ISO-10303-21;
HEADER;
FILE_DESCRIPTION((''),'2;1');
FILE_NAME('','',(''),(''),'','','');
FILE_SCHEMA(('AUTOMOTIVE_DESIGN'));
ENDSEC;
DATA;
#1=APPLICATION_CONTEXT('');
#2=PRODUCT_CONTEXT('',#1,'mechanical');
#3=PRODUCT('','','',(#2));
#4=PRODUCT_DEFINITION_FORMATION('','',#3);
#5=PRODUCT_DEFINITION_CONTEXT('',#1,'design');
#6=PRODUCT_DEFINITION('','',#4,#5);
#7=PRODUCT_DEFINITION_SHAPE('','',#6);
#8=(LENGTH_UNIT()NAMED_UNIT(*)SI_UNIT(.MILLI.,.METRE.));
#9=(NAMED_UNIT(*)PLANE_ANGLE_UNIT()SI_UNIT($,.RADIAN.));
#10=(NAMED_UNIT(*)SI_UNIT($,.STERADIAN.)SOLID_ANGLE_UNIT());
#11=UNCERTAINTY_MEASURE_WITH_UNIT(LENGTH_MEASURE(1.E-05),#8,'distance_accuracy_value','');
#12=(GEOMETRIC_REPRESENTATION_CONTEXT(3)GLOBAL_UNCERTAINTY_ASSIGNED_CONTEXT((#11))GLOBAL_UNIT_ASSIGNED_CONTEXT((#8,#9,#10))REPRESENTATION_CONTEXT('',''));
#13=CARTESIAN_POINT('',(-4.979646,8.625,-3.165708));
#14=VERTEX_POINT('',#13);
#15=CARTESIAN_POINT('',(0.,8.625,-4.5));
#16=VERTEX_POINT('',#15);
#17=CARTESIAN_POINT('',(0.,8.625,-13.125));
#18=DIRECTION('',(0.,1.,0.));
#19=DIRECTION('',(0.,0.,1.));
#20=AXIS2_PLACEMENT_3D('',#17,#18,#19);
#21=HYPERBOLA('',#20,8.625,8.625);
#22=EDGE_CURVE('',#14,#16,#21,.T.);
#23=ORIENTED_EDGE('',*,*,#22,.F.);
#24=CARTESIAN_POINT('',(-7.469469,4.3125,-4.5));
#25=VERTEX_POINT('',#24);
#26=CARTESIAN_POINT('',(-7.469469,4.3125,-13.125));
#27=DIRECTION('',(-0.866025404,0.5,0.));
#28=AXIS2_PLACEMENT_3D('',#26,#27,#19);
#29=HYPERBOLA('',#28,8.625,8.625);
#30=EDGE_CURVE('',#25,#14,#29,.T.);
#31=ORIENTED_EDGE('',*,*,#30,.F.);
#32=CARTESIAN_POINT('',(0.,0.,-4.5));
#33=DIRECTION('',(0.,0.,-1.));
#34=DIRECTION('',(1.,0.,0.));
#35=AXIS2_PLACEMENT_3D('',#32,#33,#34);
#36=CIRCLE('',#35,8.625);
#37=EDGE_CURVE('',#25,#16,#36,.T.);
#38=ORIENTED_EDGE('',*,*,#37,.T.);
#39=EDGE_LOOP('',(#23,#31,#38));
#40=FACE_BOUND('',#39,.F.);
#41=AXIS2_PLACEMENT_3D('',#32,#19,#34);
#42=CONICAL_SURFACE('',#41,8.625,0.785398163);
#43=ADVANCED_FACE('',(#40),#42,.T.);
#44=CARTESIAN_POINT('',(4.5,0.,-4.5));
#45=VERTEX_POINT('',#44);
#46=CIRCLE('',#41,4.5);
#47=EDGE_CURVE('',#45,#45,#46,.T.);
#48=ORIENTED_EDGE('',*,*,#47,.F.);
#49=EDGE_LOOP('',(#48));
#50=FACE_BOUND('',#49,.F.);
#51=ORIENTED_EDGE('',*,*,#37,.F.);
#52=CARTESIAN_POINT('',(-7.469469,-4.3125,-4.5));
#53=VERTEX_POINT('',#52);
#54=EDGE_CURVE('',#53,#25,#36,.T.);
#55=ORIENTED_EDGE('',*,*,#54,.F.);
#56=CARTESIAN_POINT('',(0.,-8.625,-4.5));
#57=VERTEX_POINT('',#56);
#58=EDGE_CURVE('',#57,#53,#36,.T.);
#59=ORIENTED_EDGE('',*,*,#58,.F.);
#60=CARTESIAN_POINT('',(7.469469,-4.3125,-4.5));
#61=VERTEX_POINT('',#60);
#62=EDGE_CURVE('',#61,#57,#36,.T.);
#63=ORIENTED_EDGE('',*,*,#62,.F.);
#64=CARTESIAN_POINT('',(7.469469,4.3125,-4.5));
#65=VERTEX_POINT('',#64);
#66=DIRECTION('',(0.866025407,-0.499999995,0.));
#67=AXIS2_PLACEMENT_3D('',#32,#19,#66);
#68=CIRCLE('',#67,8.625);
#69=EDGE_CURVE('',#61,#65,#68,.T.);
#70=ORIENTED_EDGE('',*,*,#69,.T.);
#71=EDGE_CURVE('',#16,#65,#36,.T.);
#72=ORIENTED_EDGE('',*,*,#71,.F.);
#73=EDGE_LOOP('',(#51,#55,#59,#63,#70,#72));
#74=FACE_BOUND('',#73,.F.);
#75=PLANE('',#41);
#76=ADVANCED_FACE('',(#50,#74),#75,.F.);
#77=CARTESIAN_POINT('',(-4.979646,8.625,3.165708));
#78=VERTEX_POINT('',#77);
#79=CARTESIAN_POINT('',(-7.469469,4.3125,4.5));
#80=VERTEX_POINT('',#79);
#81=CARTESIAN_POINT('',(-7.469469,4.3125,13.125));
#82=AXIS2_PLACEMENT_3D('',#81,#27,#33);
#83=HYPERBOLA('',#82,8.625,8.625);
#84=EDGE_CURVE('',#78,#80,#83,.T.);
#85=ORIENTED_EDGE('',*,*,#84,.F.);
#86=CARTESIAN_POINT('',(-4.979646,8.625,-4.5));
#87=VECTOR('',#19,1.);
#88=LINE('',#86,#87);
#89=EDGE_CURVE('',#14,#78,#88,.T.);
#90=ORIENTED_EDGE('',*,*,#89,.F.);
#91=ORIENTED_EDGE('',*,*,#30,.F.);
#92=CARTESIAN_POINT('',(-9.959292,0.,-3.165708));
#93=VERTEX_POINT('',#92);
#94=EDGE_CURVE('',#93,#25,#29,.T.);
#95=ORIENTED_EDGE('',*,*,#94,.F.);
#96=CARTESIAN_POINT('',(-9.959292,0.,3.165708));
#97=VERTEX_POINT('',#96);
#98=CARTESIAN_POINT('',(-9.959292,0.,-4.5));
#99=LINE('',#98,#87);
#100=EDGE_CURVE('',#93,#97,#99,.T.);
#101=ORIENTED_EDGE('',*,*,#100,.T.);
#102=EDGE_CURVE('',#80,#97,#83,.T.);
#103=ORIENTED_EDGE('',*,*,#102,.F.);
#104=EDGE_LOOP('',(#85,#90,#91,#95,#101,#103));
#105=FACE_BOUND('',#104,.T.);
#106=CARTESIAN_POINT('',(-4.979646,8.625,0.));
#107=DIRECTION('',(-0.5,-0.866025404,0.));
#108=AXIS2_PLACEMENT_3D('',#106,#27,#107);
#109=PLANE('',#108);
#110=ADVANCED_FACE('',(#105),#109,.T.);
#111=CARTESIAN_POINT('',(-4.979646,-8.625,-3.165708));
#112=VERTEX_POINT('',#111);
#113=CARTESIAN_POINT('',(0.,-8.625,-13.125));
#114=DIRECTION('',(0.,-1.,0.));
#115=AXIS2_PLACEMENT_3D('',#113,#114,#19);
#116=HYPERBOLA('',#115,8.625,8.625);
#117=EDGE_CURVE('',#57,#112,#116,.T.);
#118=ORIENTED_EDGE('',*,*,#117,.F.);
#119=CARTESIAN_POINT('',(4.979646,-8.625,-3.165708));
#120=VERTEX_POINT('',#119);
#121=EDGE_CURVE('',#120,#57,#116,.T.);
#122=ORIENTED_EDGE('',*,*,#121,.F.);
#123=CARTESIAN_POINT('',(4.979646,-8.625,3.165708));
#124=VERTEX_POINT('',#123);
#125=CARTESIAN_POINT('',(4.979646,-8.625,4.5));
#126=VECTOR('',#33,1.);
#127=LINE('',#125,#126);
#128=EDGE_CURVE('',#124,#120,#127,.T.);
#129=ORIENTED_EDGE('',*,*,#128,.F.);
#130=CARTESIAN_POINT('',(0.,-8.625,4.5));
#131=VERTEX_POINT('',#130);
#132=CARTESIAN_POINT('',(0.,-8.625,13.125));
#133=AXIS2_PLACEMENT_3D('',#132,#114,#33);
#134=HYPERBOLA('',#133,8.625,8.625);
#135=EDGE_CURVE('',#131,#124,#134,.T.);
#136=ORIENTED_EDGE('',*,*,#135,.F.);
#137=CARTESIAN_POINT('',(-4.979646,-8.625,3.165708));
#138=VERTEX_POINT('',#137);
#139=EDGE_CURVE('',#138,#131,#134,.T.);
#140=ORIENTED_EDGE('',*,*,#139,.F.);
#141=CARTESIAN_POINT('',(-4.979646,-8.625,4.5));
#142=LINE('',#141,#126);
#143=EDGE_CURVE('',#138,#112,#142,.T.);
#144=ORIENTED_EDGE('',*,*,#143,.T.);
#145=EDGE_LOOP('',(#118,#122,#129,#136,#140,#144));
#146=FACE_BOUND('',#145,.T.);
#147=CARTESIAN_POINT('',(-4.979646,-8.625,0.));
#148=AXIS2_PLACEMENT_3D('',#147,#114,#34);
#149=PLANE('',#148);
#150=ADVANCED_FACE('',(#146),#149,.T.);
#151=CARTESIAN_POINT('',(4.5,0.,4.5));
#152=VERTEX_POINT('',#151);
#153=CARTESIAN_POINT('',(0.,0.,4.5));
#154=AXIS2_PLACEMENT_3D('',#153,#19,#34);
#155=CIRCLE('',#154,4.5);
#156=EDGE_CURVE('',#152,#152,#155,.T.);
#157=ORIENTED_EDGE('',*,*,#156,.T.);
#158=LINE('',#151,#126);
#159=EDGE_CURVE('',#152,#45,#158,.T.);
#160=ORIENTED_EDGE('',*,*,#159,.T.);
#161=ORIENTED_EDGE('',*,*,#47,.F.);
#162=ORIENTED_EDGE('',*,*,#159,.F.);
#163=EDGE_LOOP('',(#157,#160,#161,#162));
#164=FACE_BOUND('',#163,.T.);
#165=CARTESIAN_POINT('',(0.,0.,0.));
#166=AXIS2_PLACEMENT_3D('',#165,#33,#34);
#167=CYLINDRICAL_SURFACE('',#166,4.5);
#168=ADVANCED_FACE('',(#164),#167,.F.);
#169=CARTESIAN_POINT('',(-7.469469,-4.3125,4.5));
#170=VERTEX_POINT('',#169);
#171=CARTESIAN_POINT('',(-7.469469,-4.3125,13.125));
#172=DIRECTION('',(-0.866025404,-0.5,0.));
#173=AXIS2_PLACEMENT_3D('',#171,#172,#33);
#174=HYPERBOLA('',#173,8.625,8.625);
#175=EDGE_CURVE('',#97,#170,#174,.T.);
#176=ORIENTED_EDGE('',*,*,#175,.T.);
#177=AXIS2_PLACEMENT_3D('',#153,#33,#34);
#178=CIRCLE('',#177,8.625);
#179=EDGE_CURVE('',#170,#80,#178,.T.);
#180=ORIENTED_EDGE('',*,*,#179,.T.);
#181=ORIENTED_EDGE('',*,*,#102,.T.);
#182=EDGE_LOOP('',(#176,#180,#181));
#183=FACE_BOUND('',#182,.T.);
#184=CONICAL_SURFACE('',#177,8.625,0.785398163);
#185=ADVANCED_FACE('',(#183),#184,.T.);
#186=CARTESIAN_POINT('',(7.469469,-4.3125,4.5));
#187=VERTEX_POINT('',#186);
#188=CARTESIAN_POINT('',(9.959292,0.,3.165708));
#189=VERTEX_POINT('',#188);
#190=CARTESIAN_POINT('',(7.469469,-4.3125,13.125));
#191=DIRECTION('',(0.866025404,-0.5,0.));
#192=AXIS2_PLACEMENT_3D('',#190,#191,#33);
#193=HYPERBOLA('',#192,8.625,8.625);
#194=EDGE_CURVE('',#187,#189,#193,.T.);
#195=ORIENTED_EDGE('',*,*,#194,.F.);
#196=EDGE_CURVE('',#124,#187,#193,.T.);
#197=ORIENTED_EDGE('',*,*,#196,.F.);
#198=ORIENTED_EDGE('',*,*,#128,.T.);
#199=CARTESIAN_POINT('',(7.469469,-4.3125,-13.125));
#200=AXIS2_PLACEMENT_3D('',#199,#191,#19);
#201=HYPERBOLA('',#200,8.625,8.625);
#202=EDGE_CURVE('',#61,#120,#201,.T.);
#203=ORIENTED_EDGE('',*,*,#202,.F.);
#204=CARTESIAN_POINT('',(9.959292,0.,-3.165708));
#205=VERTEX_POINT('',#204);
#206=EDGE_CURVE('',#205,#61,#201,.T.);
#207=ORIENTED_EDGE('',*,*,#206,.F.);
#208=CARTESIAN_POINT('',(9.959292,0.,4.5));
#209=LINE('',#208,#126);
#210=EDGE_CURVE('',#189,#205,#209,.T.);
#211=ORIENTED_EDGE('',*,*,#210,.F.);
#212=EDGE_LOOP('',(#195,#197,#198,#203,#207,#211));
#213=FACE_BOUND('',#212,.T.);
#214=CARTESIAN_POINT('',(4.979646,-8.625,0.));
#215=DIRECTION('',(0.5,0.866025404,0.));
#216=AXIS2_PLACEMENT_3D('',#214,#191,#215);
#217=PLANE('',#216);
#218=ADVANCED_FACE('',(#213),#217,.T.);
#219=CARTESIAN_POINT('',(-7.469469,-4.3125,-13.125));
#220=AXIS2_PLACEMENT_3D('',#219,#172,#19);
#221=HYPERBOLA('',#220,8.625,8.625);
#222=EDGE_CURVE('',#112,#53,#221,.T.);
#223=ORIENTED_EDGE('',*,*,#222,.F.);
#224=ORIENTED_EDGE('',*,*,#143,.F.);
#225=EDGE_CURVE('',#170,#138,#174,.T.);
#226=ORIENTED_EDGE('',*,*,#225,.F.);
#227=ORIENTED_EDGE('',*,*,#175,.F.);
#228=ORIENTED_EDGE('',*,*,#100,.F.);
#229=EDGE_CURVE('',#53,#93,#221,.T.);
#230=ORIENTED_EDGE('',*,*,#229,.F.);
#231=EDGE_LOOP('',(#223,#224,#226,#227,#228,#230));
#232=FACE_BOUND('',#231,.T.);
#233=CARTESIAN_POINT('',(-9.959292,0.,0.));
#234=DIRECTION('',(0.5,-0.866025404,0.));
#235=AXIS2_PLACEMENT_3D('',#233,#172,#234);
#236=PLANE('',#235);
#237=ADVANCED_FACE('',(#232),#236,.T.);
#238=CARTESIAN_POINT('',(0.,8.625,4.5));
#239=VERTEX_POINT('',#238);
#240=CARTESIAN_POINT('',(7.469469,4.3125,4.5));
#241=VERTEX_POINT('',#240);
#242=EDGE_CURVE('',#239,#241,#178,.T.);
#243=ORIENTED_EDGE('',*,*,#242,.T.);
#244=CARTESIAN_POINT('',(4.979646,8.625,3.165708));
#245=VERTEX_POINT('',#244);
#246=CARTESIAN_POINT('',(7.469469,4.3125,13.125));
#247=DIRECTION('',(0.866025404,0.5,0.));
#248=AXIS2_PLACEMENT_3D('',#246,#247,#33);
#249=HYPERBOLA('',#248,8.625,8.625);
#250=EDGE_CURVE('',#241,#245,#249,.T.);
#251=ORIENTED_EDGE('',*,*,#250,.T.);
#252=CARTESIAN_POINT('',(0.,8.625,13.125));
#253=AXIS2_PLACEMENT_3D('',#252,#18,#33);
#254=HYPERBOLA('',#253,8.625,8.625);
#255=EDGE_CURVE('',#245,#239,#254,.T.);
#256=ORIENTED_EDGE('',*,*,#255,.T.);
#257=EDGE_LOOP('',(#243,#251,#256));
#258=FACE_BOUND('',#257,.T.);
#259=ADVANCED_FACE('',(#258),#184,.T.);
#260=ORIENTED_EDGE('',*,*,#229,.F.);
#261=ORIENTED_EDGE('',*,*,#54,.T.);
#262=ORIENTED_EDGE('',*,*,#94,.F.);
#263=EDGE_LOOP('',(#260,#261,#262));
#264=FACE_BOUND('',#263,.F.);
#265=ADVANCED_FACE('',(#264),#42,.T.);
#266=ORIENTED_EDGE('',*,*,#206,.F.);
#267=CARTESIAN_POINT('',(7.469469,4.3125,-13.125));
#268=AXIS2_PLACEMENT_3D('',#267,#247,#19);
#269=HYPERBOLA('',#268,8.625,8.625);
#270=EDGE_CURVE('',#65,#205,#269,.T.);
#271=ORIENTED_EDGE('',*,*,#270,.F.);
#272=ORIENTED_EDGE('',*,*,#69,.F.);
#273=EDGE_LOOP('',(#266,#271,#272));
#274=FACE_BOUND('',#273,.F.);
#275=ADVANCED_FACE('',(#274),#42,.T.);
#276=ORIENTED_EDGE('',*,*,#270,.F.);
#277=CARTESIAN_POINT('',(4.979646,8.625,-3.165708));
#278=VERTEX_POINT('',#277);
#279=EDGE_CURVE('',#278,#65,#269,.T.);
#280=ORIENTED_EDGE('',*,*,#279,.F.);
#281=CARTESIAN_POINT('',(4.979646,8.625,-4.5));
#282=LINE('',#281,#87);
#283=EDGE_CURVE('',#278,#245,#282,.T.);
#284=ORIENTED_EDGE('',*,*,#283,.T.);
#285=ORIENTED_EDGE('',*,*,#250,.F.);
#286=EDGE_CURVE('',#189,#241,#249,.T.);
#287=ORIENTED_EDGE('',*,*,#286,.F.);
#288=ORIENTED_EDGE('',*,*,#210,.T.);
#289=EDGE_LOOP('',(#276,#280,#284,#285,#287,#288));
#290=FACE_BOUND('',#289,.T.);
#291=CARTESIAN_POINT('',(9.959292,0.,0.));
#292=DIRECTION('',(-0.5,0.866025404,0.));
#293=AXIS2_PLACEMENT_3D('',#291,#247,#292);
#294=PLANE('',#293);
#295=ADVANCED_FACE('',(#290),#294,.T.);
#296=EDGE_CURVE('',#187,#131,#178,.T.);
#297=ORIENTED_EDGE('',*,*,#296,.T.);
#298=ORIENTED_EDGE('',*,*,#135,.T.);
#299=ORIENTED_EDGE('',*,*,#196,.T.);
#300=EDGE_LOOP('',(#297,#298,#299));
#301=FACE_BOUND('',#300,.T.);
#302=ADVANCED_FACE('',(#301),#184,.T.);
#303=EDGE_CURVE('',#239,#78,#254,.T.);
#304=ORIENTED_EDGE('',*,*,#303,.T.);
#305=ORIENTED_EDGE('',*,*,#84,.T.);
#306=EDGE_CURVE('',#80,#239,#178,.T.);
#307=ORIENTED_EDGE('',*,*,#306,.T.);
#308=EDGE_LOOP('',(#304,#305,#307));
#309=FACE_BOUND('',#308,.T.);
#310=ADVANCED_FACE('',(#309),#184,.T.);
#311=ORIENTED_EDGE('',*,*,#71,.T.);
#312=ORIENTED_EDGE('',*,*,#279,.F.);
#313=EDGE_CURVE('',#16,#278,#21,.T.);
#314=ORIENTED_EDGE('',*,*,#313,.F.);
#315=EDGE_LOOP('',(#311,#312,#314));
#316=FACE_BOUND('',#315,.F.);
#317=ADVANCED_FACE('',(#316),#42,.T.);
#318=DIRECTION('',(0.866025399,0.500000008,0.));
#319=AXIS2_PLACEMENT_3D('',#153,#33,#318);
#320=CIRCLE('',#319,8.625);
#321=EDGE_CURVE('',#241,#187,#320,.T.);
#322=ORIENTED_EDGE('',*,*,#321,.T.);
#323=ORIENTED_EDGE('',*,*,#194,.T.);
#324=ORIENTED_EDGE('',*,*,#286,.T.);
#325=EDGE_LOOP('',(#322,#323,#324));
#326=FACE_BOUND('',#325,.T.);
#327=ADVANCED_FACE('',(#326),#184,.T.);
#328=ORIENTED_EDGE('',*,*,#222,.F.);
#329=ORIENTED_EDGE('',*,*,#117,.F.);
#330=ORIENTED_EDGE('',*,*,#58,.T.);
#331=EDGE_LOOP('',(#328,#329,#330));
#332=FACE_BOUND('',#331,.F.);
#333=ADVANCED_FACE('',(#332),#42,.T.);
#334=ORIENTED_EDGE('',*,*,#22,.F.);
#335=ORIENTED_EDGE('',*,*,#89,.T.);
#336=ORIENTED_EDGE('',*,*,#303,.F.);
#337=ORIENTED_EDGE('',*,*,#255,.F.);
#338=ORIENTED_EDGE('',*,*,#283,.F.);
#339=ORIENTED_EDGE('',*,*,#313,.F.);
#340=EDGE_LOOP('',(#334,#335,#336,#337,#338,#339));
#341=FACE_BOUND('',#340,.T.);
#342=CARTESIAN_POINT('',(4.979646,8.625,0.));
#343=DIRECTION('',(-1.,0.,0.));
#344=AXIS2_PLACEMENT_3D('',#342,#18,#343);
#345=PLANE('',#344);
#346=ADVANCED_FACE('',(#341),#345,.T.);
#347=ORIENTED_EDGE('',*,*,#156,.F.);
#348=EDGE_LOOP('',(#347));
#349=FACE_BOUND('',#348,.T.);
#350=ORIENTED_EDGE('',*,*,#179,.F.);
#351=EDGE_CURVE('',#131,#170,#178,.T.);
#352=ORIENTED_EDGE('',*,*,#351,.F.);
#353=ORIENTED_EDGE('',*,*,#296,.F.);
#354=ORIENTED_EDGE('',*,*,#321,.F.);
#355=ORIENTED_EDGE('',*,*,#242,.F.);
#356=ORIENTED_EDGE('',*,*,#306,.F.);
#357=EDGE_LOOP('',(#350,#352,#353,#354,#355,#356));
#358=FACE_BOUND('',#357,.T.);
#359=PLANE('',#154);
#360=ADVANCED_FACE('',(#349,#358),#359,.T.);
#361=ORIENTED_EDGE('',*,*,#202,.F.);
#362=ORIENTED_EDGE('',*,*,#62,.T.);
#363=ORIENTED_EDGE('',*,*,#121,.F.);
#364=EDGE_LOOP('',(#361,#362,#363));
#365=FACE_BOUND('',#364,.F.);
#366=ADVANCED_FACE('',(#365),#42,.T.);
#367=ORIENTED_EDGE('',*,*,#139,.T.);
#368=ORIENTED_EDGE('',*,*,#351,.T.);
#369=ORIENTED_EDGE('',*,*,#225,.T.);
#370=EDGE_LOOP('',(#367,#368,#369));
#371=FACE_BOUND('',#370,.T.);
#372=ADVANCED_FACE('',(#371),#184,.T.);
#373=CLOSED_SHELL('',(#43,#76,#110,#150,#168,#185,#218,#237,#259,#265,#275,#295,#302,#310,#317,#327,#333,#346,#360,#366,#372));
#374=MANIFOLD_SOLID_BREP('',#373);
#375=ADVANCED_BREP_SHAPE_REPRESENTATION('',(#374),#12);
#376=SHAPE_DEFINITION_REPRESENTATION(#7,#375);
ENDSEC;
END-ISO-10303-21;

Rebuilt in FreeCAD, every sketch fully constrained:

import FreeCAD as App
import Part
import Sketcher
Q = App.Units.Quantity

doc = App.newDocument("Part")
params = doc.addObject("Spreadsheet::Sheet", "Params")
for row, (alias, value) in enumerate([
    ("sketch1_diameter", "9 mm"),
    ("pad1_length", "9 mm"),
    ("sketch2_diameter", "17.25 mm"),
    ("pocket1_length", "9 mm"),
    ("pocket1_taper", "45 deg"),
], start=1):
    params.set(f"A{row}", alias)
    params.set(f"B{row}", "=" + value)
    params.setAlias(f"B{row}", alias)

body = doc.addObject("PartDesign::Body", "Body")

sketch1 = doc.addObject("Sketcher::SketchObject", "Sketch")
body.addObject(sketch1)
sketch1.AttachmentSupport = (doc.XY_Plane, [""])
sketch1.MapMode = "FlatFace"
sketch1.addGeometry([
    Part.LineSegment(App.Vector(10, 0, 0), App.Vector(5, 8.6, 0)),
    Part.LineSegment(App.Vector(5, 8.6, 0), App.Vector(-5, 8.6, 0)),
    Part.LineSegment(App.Vector(-5, 8.6, 0), App.Vector(-10, 0, 0)),
    Part.LineSegment(App.Vector(-10, 0, 0), App.Vector(-5, -8.6, 0)),
    Part.LineSegment(App.Vector(-5, -8.6, 0), App.Vector(5, -8.6, 0)),
    Part.LineSegment(App.Vector(5, -8.6, 0), App.Vector(10, 0, 0)),
    Part.Circle(App.Vector(0, 0, 0), App.Vector(0, 0, 1), 4.5),
], False)
sketch1.addConstraint([
    Sketcher.Constraint("Coincident", 0, 2, 1, 1),
    Sketcher.Constraint("Coincident", 1, 2, 2, 1),
    Sketcher.Constraint("Coincident", 2, 2, 3, 1),
    Sketcher.Constraint("Coincident", 3, 2, 4, 1),
    Sketcher.Constraint("Coincident", 4, 2, 5, 1),
    Sketcher.Constraint("Coincident", 5, 2, 0, 1),
    Sketcher.Constraint("Horizontal", 1),
    Sketcher.Constraint("Horizontal", 4),
    Sketcher.Constraint("Coincident", 6, 3, -1, 1),
    Sketcher.Constraint("Symmetric", 0, 2, 3, 2, -1, 1),
    Sketcher.Constraint("Symmetric", 2, 2, 5, 2, -1, 1),
    Sketcher.Constraint("PointOnObject", 2, 2, -1),
    Sketcher.Constraint("Parallel", 2, 5),
    Sketcher.Constraint("Vertical", 1, 2, 3, 2),
    Sketcher.Constraint("Diameter", 6, 9.0),
    Sketcher.Constraint("Angle", 0, Q("120 deg")),
    Sketcher.Constraint("DistanceY", 3, 2, 1, 2, 17.25),
    Sketcher.Constraint("DistanceX", 1, 2, 1, 1, 9.959292),
])
sketch1.setExpression("Constraints[14]", "Params.sketch1_diameter")
pad1 = doc.addObject("PartDesign::Pad", "Pad")
body.addObject(pad1)
pad1.Profile = sketch1
pad1.setExpression("Length", "Params.pad1_length")
pad1.Midplane = True

sketch2 = doc.addObject("Sketcher::SketchObject", "Sketch001")
body.addObject(sketch2)
sketch2.AttachmentSupport = (doc.XY_Plane, [""])
sketch2.MapMode = "FlatFace"
sketch2.AttachmentOffset = App.Placement(App.Vector(0, 0, 4.5), App.Rotation())
sketch2.addGeometry([
    Part.LineSegment(App.Vector(-23, 21, 0), App.Vector(-23, -21, 0)),
    Part.LineSegment(App.Vector(-23, -21, 0), App.Vector(23, -21, 0)),
    Part.LineSegment(App.Vector(23, -21, 0), App.Vector(23, 21, 0)),
    Part.LineSegment(App.Vector(23, 21, 0), App.Vector(-23, 21, 0)),
    Part.Circle(App.Vector(0, 0, 0), App.Vector(0, 0, 1), 9),
], False)
sketch2.addConstraint([
    Sketcher.Constraint("Coincident", 0, 2, 1, 1),
    Sketcher.Constraint("Coincident", 1, 2, 2, 1),
    Sketcher.Constraint("Coincident", 2, 2, 3, 1),
    Sketcher.Constraint("Coincident", 3, 2, 0, 1),
    Sketcher.Constraint("Vertical", 0),
    Sketcher.Constraint("Horizontal", 1),
    Sketcher.Constraint("Vertical", 2),
    Sketcher.Constraint("Horizontal", 3),
    Sketcher.Constraint("Coincident", 4, 3, -1, 1),
    Sketcher.Constraint("Symmetric", 0, 2, 2, 2, -1, 1),
    Sketcher.Constraint("Diameter", 4, 17.25),
    Sketcher.Constraint("DistanceX", 1, 1, 1, 2, 45.486),
    Sketcher.Constraint("DistanceY", 0, 2, 0, 1, 42.818),
])
sketch2.setExpression("Constraints[10]", "Params.sketch2_diameter")
pocket1 = doc.addObject("PartDesign::Pocket", "Pocket")
body.addObject(pocket1)
pocket1.Profile = sketch2
pocket1.setExpression("Length", "Params.pocket1_length")
pocket1.setExpression("TaperAngle", "Params.pocket1_taper")
doc.recompute()

mirrored = doc.addObject("PartDesign::Mirrored", "Mirrored")
body.addObject(mirrored)
mirrored.Originals = [pocket1]
mirrored.MirrorPlane = (doc.XY_Plane, [""])
body.Tip = mirrored

doc.recompute()
